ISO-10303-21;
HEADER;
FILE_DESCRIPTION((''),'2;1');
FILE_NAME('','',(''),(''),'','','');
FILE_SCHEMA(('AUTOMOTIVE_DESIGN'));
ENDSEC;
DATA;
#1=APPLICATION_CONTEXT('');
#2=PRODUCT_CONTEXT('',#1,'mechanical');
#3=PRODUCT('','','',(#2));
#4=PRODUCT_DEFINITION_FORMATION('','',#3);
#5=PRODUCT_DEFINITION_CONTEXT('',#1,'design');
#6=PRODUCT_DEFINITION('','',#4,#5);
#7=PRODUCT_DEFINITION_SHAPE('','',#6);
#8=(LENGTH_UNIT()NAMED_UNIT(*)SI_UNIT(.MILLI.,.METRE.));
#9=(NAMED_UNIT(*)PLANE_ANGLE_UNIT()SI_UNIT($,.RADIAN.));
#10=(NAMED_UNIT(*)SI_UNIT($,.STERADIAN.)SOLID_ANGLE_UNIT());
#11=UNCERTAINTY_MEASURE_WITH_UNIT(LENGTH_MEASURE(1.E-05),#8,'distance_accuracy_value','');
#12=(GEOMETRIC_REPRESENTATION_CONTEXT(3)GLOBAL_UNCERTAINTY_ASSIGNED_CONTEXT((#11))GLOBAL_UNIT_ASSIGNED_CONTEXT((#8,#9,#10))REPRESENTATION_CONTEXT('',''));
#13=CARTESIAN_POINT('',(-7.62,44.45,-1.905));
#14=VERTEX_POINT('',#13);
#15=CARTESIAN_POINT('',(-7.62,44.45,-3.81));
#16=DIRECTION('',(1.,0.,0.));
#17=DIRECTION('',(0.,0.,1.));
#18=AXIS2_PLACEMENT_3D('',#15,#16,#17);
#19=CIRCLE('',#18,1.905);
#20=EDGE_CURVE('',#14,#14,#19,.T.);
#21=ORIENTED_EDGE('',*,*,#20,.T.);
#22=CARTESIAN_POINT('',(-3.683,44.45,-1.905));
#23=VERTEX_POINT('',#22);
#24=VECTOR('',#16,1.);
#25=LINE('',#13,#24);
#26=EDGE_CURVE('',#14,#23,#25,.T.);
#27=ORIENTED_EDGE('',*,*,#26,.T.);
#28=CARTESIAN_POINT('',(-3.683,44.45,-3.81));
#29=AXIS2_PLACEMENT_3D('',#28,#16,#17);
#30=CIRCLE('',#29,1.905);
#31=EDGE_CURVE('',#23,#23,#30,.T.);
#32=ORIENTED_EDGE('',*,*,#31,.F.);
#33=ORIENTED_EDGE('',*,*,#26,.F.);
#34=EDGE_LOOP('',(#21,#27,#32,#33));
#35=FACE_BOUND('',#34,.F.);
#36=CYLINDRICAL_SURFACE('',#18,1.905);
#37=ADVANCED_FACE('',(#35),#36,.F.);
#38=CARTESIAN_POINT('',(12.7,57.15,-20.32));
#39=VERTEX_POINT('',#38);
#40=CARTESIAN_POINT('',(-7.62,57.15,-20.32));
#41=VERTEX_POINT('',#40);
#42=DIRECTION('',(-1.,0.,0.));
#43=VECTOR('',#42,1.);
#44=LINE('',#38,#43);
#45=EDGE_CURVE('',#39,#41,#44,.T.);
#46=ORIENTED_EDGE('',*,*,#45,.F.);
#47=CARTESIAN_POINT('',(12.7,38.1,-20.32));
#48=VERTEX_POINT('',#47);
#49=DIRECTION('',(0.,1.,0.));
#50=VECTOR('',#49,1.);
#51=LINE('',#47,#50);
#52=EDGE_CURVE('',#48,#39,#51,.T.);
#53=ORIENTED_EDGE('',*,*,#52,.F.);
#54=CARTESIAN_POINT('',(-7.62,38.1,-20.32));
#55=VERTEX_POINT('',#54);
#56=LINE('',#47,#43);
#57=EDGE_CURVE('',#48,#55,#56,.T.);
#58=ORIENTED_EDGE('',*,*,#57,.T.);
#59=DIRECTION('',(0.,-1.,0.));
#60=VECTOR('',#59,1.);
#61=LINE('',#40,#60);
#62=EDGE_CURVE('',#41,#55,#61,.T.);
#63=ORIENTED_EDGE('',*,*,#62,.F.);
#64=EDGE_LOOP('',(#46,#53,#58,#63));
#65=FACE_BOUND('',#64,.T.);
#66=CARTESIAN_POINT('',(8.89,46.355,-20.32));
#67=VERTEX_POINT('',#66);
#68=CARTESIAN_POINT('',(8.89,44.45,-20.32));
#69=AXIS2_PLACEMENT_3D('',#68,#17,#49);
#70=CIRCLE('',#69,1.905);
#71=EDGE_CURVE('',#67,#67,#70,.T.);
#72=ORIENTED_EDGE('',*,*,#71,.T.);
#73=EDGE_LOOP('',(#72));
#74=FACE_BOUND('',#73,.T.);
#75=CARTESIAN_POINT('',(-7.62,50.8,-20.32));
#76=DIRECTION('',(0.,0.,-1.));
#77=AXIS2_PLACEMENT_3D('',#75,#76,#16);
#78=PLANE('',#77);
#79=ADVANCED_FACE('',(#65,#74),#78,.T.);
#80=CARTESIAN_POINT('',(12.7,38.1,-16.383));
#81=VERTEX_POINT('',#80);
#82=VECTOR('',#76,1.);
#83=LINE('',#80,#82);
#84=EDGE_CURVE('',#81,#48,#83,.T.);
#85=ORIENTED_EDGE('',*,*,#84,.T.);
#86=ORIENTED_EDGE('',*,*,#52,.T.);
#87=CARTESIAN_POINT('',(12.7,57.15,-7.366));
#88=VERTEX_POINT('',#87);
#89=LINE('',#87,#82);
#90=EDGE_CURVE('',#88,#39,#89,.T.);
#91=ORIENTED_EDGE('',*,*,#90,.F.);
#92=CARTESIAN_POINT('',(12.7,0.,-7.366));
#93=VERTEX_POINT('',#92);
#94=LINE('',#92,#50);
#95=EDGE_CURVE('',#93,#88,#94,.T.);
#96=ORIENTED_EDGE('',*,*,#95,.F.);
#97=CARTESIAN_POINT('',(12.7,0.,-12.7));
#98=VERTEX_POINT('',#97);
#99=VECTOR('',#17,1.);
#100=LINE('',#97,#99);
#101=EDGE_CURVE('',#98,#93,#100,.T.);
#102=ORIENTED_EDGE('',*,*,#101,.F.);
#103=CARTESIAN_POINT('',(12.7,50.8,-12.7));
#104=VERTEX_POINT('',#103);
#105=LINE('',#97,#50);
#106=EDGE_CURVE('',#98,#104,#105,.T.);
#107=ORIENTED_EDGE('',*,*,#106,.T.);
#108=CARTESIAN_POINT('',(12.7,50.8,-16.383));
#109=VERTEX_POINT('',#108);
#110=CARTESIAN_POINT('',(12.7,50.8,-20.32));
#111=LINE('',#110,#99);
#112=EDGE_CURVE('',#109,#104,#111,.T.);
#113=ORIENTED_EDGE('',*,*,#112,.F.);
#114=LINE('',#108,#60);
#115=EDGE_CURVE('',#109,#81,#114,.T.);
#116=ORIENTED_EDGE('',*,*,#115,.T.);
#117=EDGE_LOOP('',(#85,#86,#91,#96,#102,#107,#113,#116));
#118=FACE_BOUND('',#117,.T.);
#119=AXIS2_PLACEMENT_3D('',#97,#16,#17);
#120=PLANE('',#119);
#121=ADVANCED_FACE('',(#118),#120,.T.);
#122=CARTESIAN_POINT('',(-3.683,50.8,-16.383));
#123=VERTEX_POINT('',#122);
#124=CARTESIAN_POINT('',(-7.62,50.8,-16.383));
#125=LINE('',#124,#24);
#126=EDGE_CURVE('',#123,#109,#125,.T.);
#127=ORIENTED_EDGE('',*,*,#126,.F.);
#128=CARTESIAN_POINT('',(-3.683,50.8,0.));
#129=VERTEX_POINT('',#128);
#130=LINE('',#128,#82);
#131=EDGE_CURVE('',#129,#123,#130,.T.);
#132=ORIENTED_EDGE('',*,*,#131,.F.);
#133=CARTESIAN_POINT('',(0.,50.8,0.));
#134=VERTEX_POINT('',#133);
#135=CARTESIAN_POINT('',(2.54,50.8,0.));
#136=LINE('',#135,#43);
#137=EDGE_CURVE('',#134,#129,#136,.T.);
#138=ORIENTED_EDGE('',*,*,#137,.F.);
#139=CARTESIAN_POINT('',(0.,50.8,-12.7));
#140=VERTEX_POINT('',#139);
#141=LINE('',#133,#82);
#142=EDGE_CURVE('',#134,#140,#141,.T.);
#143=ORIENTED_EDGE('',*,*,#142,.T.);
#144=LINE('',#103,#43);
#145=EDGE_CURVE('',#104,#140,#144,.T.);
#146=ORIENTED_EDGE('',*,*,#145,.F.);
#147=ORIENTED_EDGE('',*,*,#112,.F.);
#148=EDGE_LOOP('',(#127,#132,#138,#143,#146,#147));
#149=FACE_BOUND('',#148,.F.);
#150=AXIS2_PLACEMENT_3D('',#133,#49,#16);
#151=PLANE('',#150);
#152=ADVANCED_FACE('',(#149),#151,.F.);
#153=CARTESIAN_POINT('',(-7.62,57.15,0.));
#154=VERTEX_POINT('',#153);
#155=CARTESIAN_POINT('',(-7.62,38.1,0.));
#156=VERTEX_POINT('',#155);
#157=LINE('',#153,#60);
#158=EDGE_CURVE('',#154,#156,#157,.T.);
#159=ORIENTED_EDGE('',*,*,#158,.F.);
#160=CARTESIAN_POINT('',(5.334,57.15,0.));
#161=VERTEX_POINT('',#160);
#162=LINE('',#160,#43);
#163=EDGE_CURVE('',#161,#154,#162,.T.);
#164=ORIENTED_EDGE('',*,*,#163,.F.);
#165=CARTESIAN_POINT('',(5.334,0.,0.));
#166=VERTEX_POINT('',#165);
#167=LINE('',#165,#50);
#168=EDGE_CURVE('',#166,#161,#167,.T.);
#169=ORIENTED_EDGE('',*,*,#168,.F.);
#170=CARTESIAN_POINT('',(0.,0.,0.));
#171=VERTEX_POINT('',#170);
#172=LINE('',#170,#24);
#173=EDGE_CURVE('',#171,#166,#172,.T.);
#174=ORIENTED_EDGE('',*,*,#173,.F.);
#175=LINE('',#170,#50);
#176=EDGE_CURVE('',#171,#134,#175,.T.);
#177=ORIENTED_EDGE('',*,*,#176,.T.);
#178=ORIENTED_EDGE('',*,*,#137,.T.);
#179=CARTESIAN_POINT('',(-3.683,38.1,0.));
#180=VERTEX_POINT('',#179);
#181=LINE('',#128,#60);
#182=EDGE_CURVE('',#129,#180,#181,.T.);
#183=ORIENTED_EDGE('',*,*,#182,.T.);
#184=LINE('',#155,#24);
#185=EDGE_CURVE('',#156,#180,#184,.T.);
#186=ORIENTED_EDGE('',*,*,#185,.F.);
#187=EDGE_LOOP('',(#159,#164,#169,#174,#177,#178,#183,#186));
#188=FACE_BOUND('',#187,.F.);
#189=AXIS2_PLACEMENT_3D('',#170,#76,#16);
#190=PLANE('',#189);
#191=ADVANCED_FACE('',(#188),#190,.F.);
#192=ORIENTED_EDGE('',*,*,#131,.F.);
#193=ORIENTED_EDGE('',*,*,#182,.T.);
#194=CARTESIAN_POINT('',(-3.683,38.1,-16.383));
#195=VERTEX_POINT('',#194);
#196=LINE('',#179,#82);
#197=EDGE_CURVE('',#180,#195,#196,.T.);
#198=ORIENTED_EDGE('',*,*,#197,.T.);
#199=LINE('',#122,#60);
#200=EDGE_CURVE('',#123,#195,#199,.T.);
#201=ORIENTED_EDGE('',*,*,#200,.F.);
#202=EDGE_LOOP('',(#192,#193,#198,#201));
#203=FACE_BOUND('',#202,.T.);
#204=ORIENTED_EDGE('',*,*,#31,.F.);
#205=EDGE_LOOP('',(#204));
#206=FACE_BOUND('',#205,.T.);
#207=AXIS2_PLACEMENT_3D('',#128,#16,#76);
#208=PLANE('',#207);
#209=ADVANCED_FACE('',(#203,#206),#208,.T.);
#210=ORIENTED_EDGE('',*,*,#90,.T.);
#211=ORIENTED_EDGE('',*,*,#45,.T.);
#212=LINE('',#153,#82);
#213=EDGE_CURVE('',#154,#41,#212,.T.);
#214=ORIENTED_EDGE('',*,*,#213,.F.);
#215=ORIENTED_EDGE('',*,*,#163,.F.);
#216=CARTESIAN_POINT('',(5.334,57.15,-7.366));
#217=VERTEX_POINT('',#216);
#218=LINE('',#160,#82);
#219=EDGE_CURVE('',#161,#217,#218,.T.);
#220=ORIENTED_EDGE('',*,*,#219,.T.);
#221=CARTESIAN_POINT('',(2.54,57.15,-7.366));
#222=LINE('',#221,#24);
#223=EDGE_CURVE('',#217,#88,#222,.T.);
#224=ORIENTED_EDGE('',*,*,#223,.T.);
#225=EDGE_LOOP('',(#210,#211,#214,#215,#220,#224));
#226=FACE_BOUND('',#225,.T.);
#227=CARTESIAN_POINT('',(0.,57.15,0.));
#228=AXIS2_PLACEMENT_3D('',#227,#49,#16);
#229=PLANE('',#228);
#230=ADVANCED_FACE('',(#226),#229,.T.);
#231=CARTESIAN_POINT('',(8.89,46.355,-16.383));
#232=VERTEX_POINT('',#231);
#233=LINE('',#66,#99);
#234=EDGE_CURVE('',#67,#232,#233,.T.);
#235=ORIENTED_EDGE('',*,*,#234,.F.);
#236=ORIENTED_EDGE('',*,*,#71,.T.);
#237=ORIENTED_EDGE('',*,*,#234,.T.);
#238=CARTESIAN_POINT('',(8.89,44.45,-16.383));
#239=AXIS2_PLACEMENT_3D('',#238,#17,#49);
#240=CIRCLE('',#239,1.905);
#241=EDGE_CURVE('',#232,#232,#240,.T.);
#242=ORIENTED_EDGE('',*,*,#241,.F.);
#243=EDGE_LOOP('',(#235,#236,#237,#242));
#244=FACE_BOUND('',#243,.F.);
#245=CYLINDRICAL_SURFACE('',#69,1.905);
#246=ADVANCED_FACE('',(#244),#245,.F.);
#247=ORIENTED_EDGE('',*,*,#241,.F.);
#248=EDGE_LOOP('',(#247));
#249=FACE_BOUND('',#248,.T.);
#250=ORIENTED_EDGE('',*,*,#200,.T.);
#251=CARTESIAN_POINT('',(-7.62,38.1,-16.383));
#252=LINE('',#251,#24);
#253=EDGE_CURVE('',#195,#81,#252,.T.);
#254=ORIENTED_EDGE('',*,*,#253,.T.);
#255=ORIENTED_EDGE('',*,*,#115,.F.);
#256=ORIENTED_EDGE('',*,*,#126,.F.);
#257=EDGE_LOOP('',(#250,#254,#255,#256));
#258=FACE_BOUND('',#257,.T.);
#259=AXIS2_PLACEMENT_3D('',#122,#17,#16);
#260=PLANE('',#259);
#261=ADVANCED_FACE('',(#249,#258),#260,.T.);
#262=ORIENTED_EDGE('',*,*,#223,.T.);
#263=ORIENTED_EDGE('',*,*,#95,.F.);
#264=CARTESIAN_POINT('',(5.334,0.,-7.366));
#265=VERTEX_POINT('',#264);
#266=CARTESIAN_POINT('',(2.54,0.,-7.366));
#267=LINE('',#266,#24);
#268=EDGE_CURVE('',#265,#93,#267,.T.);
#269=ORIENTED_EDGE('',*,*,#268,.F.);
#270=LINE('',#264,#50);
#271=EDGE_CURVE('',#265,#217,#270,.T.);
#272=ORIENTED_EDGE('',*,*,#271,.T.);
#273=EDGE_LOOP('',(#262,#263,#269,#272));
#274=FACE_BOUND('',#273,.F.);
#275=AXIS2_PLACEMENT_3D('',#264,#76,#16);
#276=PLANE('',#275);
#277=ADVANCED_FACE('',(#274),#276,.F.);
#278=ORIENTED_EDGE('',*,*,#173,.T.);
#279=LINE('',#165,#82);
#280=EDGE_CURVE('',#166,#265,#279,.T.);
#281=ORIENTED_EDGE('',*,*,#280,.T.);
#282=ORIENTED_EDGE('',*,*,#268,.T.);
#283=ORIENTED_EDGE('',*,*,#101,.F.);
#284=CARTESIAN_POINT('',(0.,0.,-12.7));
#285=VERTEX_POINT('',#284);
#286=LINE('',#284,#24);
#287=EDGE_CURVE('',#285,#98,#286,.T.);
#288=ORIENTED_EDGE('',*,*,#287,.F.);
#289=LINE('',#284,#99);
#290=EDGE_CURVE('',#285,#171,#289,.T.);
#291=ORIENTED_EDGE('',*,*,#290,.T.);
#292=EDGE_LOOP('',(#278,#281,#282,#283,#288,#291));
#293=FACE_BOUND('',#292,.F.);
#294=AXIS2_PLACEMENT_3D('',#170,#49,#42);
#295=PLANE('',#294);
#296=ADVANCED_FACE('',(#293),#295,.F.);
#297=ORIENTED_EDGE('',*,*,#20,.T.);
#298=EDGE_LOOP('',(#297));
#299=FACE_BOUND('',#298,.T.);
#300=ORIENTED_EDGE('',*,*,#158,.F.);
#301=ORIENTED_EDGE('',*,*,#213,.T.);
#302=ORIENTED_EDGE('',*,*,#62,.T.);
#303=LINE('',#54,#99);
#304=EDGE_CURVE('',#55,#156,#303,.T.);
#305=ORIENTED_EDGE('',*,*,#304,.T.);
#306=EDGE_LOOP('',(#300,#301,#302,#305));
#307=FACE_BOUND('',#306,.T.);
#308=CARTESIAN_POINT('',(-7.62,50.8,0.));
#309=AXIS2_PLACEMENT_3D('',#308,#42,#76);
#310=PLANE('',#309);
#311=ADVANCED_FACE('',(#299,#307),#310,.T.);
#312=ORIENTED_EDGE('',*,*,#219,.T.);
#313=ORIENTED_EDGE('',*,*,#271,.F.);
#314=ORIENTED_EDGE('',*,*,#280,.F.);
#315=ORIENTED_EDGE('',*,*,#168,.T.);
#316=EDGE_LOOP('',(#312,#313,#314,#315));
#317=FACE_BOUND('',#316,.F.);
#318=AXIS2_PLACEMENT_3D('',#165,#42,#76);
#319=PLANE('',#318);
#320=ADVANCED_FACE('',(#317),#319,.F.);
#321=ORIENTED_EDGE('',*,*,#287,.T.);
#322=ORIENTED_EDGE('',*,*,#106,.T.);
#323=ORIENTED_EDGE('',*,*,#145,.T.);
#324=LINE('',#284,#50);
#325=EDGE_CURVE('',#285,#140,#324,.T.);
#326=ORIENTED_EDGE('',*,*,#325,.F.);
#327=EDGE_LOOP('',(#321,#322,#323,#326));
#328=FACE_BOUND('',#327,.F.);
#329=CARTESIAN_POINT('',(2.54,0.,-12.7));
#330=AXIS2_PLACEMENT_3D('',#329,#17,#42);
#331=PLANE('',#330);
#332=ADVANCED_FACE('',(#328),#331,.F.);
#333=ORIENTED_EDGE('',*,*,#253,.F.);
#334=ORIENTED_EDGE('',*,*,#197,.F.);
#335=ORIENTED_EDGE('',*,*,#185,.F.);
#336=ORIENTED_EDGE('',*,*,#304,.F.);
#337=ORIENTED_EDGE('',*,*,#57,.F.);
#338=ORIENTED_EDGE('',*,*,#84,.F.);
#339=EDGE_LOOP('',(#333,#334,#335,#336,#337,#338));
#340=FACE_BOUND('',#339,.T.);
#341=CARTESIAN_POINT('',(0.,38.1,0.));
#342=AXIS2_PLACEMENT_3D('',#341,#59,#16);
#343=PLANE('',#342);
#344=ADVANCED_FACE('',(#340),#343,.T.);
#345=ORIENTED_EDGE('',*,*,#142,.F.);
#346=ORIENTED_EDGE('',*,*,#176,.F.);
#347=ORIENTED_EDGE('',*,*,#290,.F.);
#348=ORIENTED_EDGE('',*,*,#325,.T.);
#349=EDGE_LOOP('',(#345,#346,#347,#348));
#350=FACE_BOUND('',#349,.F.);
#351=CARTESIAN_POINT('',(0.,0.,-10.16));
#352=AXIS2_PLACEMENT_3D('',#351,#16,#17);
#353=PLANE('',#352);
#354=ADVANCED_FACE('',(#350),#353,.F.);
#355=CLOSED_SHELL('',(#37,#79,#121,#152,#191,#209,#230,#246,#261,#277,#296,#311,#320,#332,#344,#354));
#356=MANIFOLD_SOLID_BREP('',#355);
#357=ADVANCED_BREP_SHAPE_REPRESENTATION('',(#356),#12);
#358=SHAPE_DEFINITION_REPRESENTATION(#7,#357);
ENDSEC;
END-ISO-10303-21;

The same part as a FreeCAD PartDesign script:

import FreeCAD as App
import Part
import Sketcher
Q = App.Units.Quantity


def add_polygon(sketch, points):
    """Adds a closed chain of lines whose ends are joined by coincident constraints."""
    first, n = sketch.GeometryCount, len(points)
    for a, b in zip(points, points[1:] + points[:1]):
        sketch.addGeometry(Part.LineSegment(App.Vector(*a, 0), App.Vector(*b, 0)), False)
    for i in range(n):
        sketch.addConstraint(Sketcher.Constraint("Coincident", first + i, 2, first + (i + 1) % n, 1))

doc = App.newDocument("Part")
params = doc.addObject("Spreadsheet::Sheet", "Params")
for row, (alias, value) in enumerate([
    ("sketch1_width", "0.1 in"),
    ("sketch1_width2", "0.5 in"),
    ("pad1_length", "2 in"),
    ("sketch2_width", "0.4 in"),
    ("pad2_length", "0.25 in"),
    ("sketch3_width", "0.8 in"),
    ("pad3_length", "0.5 in"),
    ("sketch4_diameter", "0.15 in"),
    ("hole_diameter", "0.15 in"),
    ("hole_depth", "0.17 in"),
    ("sketch5_diameter", "0.15 in"),
    ("hole2_diameter", "0.15 in"),
    ("hole2_depth", "0.175 in"),
    ("sketch6_width", "0.11 in"),
    ("sketch6_width2", "0.4 in"),
    ("pad4_length", "2.25 in"),
], start=1):
    params.set(f"A{row}", alias)
    params.set(f"B{row}", "=" + value)
    params.setAlias(f"B{row}", alias)

body = doc.addObject("PartDesign::Body", "Body")

# Sketch on XZ plane
sketch1 = body.newObject("Sketcher::SketchObject", "Sketch")
sketch1.AttachmentSupport = (doc.getObject("XZ_Plane"), [""])
sketch1.MapMode = "FlatFace"
add_polygon(sketch1, [(0, 0), (2.5, 0), (2.5, -10.2), (12.7, -10.2), (12.7, -12.7), (0, -12.7)])  # lines 0-5
sketch1.addConstraint([
    Sketcher.Constraint("Horizontal", 0),
    Sketcher.Constraint("Vertical", 1),
    Sketcher.Constraint("Horizontal", 2),
    Sketcher.Constraint("Vertical", 3),
    Sketcher.Constraint("Horizontal", 4),
    Sketcher.Constraint("Vertical", 5),
    Sketcher.Constraint("Coincident", 5, 2, -1, 1),
    Sketcher.Constraint("Equal", 2, 1),
    Sketcher.Constraint("Equal", 0, 3),
    Sketcher.Constraint("DistanceX", 0, 1, 0, 2, Q("0.1 in")),
    Sketcher.Constraint("DistanceX", 4, 2, 4, 1, Q("0.5 in")),
])
sketch1.setExpression("Constraints[15]", "Params.sketch1_width")
sketch1.setExpression("Constraints[16]", "Params.sketch1_width2")
pad1 = body.newObject("PartDesign::Pad", "Pad")
pad1.Profile = sketch1
pad1.setExpression("Length", "Params.pad1_length")
pad1.Reversed = True

# Sketch on XZ plane
sketch2 = body.newObject("Sketcher::SketchObject", "Sketch001")
sketch2.AttachmentSupport = (doc.getObject("XZ_Plane"), [""])
sketch2.MapMode = "FlatFace"
sketch2.AttachmentOffset = App.Placement(App.Vector(0, 0, -2 * 25.4), App.Rotation())
add_polygon(sketch2, [(-8, 0), (3, 0), (3, -10), (13, -10), (13, -20), (-8, -20)])  # lines 0-5
sketch2.addConstraint([
    Sketcher.Constraint("Horizontal", 0),
    Sketcher.Constraint("Vertical", 1),
    Sketcher.Constraint("Horizontal", 2),
    Sketcher.Constraint("Vertical", 3),
    Sketcher.Constraint("Horizontal", 4),
    Sketcher.Constraint("Vertical", 5),
    Sketcher.Constraint("PointOnObject", 0, 2, -1),
    Sketcher.Constraint("Equal", 0, 2),
    Sketcher.Constraint("Equal", 2, 1),
    Sketcher.Constraint("Equal", 1, 3),
    Sketcher.Constraint("DistanceX", 0, 1, 0, 2, Q("0.4 in")),
    Sketcher.Constraint("DistanceX", -1, 1, 0, 2, Q("0.1 in")),
])
sketch2.setExpression("Constraints[16]", "Params.sketch2_width")
pad2 = body.newObject("PartDesign::Pad", "Pad001")
pad2.Profile = sketch2
pad2.setExpression("Length", "Params.pad2_length")
pad2.Reversed = True

# Sketch on XZ plane
sketch3 = body.newObject("Sketcher::SketchObject", "Sketch002")
sketch3.AttachmentSupport = (doc.getObject("XZ_Plane"), [""])
sketch3.MapMode = "FlatFace"
sketch3.AttachmentOffset = App.Placement(App.Vector(0, 0, -2 * 25.4), App.Rotation())
add_polygon(sketch3, [(-7.6, -20.3), (12.7, -20.3), (12.7, -16.4), (-3.7, -16.4), (-3.7, 0), (-7.6, 0)])  # lines 0-5
sketch3.addConstraint([
    Sketcher.Constraint("Horizontal", 0),
    Sketcher.Constraint("Vertical", 1),
    Sketcher.Constraint("Horizontal", 2),
    Sketcher.Constraint("Vertical", 3),
    Sketcher.Constraint("Horizontal", 4),
    Sketcher.Constraint("Vertical", 5),
    Sketcher.Constraint("PointOnObject", 3, 2, -1),
    Sketcher.Constraint("Equal", 4, 1),
    Sketcher.Constraint("Equal", 2, 3),
    Sketcher.Constraint("DistanceX", 0, 1, 0, 2, Q("0.8 in")),
    Sketcher.Constraint("DistanceX", 2, 2, -1, 1, Q("0.145 in")),
    Sketcher.Constraint("DistanceX", -1, 1, 0, 2, Q("0.5 in")),
])
sketch3.setExpression("Constraints[15]", "Params.sketch3_width")
pad3 = body.newObject("PartDesign::Pad", "Pad002")
pad3.Profile = sketch3
pad3.setExpression("Length", "Params.pad3_length")

# Sketch on YZ plane
sketch4 = body.newObject("Sketcher::SketchObject", "Sketch003")
sketch4.AttachmentSupport = (doc.getObject("YZ_Plane"), [""])
sketch4.MapMode = "FlatFace"
sketch4.AttachmentOffset = App.Placement(App.Vector(0, 0, -0.3 * 25.4), App.Rotation())
sketch4.addGeometry(Part.Circle(App.Vector(44.5, -3.8, 0), App.Vector(0, 0, 1), 1.9), False)
sketch4.addConstraint([
    Sketcher.Constraint("Diameter", 0, Q("0.15 in")),
    Sketcher.Constraint("DistanceX", -1, 1, 0, 3, Q("1.75 in")),
    Sketcher.Constraint("DistanceY", 0, 3, -1, 1, Q("0.15 in")),
])
sketch4.setExpression("Constraints[0]", "Params.sketch4_diameter")
doc.recompute()
hole = body.newObject("PartDesign::Hole", "Hole")
hole.Profile = sketch4
hole.ThreadType = "None"
hole.setExpression("Diameter", "Params.hole_diameter")
hole.DepthType = "Dimension"
hole.setExpression("Depth", "Params.hole_depth")
hole.DrillPoint = "Angled"
hole.DrillPointAngle = 118
hole.Reversed = True

# Sketch on XY plane
sketch5 = body.newObject("Sketcher::SketchObject", "Sketch004")
sketch5.AttachmentSupport = (doc.getObject("XY_Plane"), [""])
sketch5.MapMode = "FlatFace"
sketch5.AttachmentOffset = App.Placement(App.Vector(0, 0, -0.8 * 25.4), App.Rotation())
sketch5.addGeometry(Part.Circle(App.Vector(8.9, 44.5, 0), App.Vector(0, 0, 1), 1.9), False)
sketch5.addConstraint([
    Sketcher.Constraint("Diameter", 0, Q("0.15 in")),
    Sketcher.Constraint("DistanceX", -1, 1, 0, 3, Q("0.35 in")),
    Sketcher.Constraint("DistanceY", -1, 1, 0, 3, Q("1.75 in")),
])
sketch5.setExpression("Constraints[0]", "Params.sketch5_diameter")
doc.recompute()
hole2 = body.newObject("PartDesign::Hole", "Hole001")
hole2.Profile = sketch5
hole2.ThreadType = "None"
hole2.setExpression("Diameter", "Params.hole2_diameter")
hole2.DepthType = "Dimension"
hole2.setExpression("Depth", "Params.hole2_depth")
hole2.DrillPoint = "Angled"
hole2.DrillPointAngle = 118
hole2.Reversed = True

# Sketch on XZ plane
sketch6 = body.newObject("Sketcher::SketchObject", "Sketch005")
sketch6.AttachmentSupport = (doc.getObject("XZ_Plane"), [""])
sketch6.MapMode = "FlatFace"
add_polygon(sketch6, [(2.5, 0), (5.3, 0), (5.3, -7.4), (12.7, -7.4), (12.7, -10.2), (2.5, -10.2)])  # lines 0-5
sketch6.addConstraint([
    Sketcher.Constraint("Horizontal", 0),
    Sketcher.Constraint("Vertical", 1),
    Sketcher.Constraint("Horizontal", 2),
    Sketcher.Constraint("Vertical", 3),
    Sketcher.Constraint("Horizontal", 4),
    Sketcher.Constraint("Vertical", 5),
    Sketcher.Constraint("PointOnObject", 0, 2, -1),
    Sketcher.Constraint("Equal", 2, 1),
    Sketcher.Constraint("Equal", 0, 3),
    Sketcher.Constraint("DistanceX", 0, 1, 0, 2, Q("0.11 in")),
    Sketcher.Constraint("DistanceX", 4, 2, 4, 1, Q("0.4 in")),
    Sketcher.Constraint("DistanceX", -1, 1, 2, 2, Q("0.5 in")),
])
sketch6.setExpression("Constraints[15]", "Params.sketch6_width")
sketch6.setExpression("Constraints[16]", "Params.sketch6_width2")
pad4 = body.newObject("PartDesign::Pad", "Pad003")
pad4.Profile = sketch6
pad4.setExpression("Length", "Params.pad4_length")
pad4.Reversed = True

doc.recompute()
